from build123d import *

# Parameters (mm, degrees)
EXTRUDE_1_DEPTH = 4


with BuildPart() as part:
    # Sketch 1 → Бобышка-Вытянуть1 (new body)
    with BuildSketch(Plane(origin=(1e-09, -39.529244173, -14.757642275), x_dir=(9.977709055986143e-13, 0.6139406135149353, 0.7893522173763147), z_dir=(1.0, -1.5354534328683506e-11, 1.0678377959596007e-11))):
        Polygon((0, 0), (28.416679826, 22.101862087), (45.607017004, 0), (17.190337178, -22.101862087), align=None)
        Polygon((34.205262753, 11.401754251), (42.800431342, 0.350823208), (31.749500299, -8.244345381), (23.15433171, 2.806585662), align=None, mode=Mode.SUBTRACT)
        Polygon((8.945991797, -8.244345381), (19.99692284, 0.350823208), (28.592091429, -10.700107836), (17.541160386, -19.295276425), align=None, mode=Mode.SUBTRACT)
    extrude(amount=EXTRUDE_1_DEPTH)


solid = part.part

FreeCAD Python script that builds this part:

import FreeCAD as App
import Part
import Sketcher

V = App.Vector
Q = App.Units.Quantity

doc = App.newDocument("Part")
body = doc.addObject("PartDesign::Body", "Body")

sketch1 = body.newObject("Sketcher::SketchObject", "Sketch")
sketch1.AttachmentSupport = (doc.getObject("YZ_Plane"), [""])
sketch1.MapMode = "FlatFace"
sketch1.addGeometry(Part.LineSegment(V(-40, 21, 0), V(-40, -15, 0)), False)
sketch1.addGeometry(Part.LineSegment(V(-40, -15, 0), V(-12, -15, 0)), False)
sketch1.addGeometry(Part.LineSegment(V(-12, -15, 0), V(-12, 21, 0)), False)
sketch1.addGeometry(Part.LineSegment(V(-12, 21, 0), V(-40, 21, 0)), False)
sketch1.addGeometry(Part.LineSegment(V(-28, -13, 0), V(-28, 1, 0)), False)
sketch1.addGeometry(Part.LineSegment(V(-28, 1, 0), V(-14, 1, 0)), False)
sketch1.addGeometry(Part.LineSegment(V(-14, 1, 0), V(-14, -13, 0)), False)
sketch1.addGeometry(Part.LineSegment(V(-14, -13, 0), V(-28, -13, 0)), False)
sketch1.addGeometry(Part.LineSegment(V(-28, 19, 0), V(-14, 19, 0)), False)
sketch1.addGeometry(Part.LineSegment(V(-14, 19, 0), V(-14, 5, 0)), False)
sketch1.addGeometry(Part.LineSegment(V(-14, 5, 0), V(-28, 5, 0)), False)
sketch1.addGeometry(Part.LineSegment(V(-28, 5, 0), V(-28, 19, 0)), False)
sketch1.addConstraint(Sketcher.Constraint("Coincident", 0, 2, 1, 1))
sketch1.addConstraint(Sketcher.Constraint("Coincident", 1, 2, 2, 1))
sketch1.addConstraint(Sketcher.Constraint("Coincident", 2, 2, 3, 1))
sketch1.addConstraint(Sketcher.Constraint("Coincident", 3, 2, 0, 1))
sketch1.addConstraint(Sketcher.Constraint("Coincident", 4, 2, 5, 1))
sketch1.addConstraint(Sketcher.Constraint("Coincident", 5, 2, 6, 1))
sketch1.addConstraint(Sketcher.Constraint("Coincident", 6, 2, 7, 1))
sketch1.addConstraint(Sketcher.Constraint("Coincident", 7, 2, 4, 1))
sketch1.addConstraint(Sketcher.Constraint("Coincident", 8, 2, 9, 1))
sketch1.addConstraint(Sketcher.Constraint("Coincident", 9, 2, 10, 1))
sketch1.addConstraint(Sketcher.Constraint("Coincident", 10, 2, 11, 1))
sketch1.addConstraint(Sketcher.Constraint("Coincident", 11, 2, 8, 1))
sketch1.addConstraint(Sketcher.Constraint("Vertical", 0))
sketch1.addConstraint(Sketcher.Constraint("Horizontal", 1))
sketch1.addConstraint(Sketcher.Constraint("Vertical", 2))
sketch1.addConstraint(Sketcher.Constraint("Horizontal", 3))
sketch1.addConstraint(Sketcher.Constraint("Vertical", 4))
sketch1.addConstraint(Sketcher.Constraint("Horizontal", 5))
sketch1.addConstraint(Sketcher.Constraint("Vertical", 6))
sketch1.addConstraint(Sketcher.Constraint("Horizontal", 7))
sketch1.addConstraint(Sketcher.Constraint("Horizontal", 8))
sketch1.addConstraint(Sketcher.Constraint("Vertical", 9))
sketch1.addConstraint(Sketcher.Constraint("Horizontal", 10))
sketch1.addConstraint(Sketcher.Constraint("Vertical", 11))
sketch1.addConstraint(Sketcher.Constraint("Vertical", 6, 2, 8, 2))
sketch1.addConstraint(Sketcher.Constraint("Vertical", 7, 2, 10, 2))
sketch1.addConstraint(Sketcher.Constraint("Equal", 10, 4))
sketch1.addConstraint(Sketcher.Constraint("Equal", 6, 9))
sketch1.addConstraint(Sketcher.Constraint("DistanceX", 1, 1, 1, 2, Q("28 mm")))
sketch1.addConstraint(Sketcher.Constraint("DistanceX", 5, 1, 5, 2, Q("14 mm")))
sketch1.addConstraint(Sketcher.Constraint("DistanceY", 0, 2, 0, 1, Q("36 mm")))
sketch1.addConstraint(Sketcher.Constraint("DistanceX", 0, 2, 4, 2, Q("12 mm")))
sketch1.addConstraint(Sketcher.Constraint("DistanceY", 0, 2, 4, 2, Q("16 mm")))
sketch1.addConstraint(Sketcher.Constraint("DistanceY", 8, 2, 2, 2, Q("2 mm")))
sketch1.addConstraint(Sketcher.Constraint("DistanceX", 0, 2, -1, 1, Q("39.529244 mm")))
sketch1.addConstraint(Sketcher.Constraint("DistanceY", 0, 2, -1, 1, Q("14.757642 mm")))
pad1 = body.newObject("PartDesign::Pad", "Pad")
pad1.Profile = sketch1
pad1.Length = 4

doc.recompute()
